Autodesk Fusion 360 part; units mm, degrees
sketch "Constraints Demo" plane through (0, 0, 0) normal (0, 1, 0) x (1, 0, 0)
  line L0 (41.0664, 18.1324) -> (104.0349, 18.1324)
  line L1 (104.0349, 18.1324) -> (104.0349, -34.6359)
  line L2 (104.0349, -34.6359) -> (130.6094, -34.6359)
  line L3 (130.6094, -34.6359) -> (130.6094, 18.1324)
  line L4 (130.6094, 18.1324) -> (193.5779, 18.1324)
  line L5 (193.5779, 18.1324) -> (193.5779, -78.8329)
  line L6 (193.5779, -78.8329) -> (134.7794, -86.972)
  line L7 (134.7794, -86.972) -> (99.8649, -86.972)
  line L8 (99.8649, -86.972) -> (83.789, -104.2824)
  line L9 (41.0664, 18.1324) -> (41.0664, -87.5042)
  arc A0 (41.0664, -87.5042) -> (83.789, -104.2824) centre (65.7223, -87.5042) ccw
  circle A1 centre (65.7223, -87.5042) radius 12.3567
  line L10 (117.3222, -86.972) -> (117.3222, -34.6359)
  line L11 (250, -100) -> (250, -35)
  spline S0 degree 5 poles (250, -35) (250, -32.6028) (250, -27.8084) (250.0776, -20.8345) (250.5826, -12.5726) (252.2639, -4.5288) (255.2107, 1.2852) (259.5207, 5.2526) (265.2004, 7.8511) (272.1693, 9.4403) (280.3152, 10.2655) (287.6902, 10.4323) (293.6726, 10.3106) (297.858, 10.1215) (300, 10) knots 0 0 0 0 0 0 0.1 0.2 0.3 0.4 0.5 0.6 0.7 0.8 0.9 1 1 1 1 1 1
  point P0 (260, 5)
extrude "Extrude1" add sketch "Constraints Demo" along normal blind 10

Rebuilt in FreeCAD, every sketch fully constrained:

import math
import FreeCAD as App
import Part
import Sketcher
Q = App.Units.Quantity

doc = App.newDocument("Part")
body = doc.addObject("PartDesign::Body", "Body")

# Sketch on XZ plane
sketch1 = body.newObject("Sketcher::SketchObject", "Sketch")
sketch1.AttachmentSupport = (doc.getObject("XZ_Plane"), [""])
sketch1.MapMode = "FlatFace"
sketch1.addGeometry([
    Part.LineSegment(App.Vector(104, -18, 0), App.Vector(41, -18, 0)),  # 0
    Part.LineSegment(App.Vector(41, -18, 0), App.Vector(41, 88, 0)),  # 1
    Part.ArcOfCircle(Part.Circle(App.Vector(66, 88, 0), App.Vector(0, 0, 1), 25), math.radians(43), math.radians(180)),  # 2
    Part.LineSegment(App.Vector(84, 104, 0), App.Vector(100, 87, 0)),  # 3
    Part.LineSegment(App.Vector(100, 87, 0), App.Vector(135, 87, 0)),  # 4
    Part.LineSegment(App.Vector(135, 87, 0), App.Vector(194, 79, 0)),  # 5
    Part.LineSegment(App.Vector(194, 79, 0), App.Vector(194, -18, 0)),  # 6
    Part.LineSegment(App.Vector(194, -18, 0), App.Vector(131, -18, 0)),  # 7
    Part.LineSegment(App.Vector(131, -18, 0), App.Vector(131, 35, 0)),  # 8
    Part.LineSegment(App.Vector(131, 35, 0), App.Vector(104, 35, 0)),  # 9
    Part.LineSegment(App.Vector(104, 35, 0), App.Vector(104, -18, 0)),  # 10
    Part.Circle(App.Vector(66, 88, 0), App.Vector(0, 0, 1), 12),  # 11
], False)
sketch1.addConstraint([
    Sketcher.Constraint("Coincident", 0, 2, 1, 1),
    Sketcher.Constraint("Tangent", 1, 2, 2, 2),
    Sketcher.Constraint("Tangent", 2, 1, 3, 1),
    Sketcher.Constraint("Coincident", 3, 2, 4, 1),
    Sketcher.Constraint("Coincident", 4, 2, 5, 1),
    Sketcher.Constraint("Coincident", 5, 2, 6, 1),
    Sketcher.Constraint("Coincident", 6, 2, 7, 1),
    Sketcher.Constraint("Coincident", 7, 2, 8, 1),
    Sketcher.Constraint("Coincident", 8, 2, 9, 1),
    Sketcher.Constraint("Coincident", 9, 2, 10, 1),
    Sketcher.Constraint("Coincident", 10, 2, 0, 1),
    Sketcher.Constraint("Horizontal", 0),
    Sketcher.Constraint("Vertical", 1),
    Sketcher.Constraint("Horizontal", 4),
    Sketcher.Constraint("Vertical", 6),
    Sketcher.Constraint("Horizontal", 7),
    Sketcher.Constraint("Vertical", 8),
    Sketcher.Constraint("Horizontal", 9),
    Sketcher.Constraint("Vertical", 10),
    Sketcher.Constraint("Coincident", 11, 3, 2, 3),
    Sketcher.Constraint("Horizontal", 0, 2, 6, 2),
    Sketcher.Constraint("Equal", 0, 7),
    Sketcher.Constraint("Radius", 2, 24.656),
    Sketcher.Constraint("Diameter", 11, 24.7134),
    Sketcher.Constraint("Angle", 5, Q("-7.881 deg")),
    Sketcher.Constraint("DistanceX", 7, 2, 4, 2, 4.17),
    Sketcher.Constraint("DistanceX", 3, 2, 9, 2, 4.17),
    Sketcher.Constraint("DistanceX", 0, 2, 0, 1, 62.9685),
    Sketcher.Constraint("DistanceX", 4, 1, 4, 2, 34.9145),
    Sketcher.Constraint("DistanceY", 1, 1, 1, 2, 105.6366),
    Sketcher.Constraint("DistanceY", 6, 2, 6, 1, 96.9653),
    Sketcher.Constraint("DistanceY", 8, 1, 8, 2, 52.7683),
    Sketcher.Constraint("DistanceX", -1, 1, 2, 1, 83.789),
    Sketcher.Constraint("DistanceY", -1, 1, 3, 2, 86.972),
])
pad1 = body.newObject("PartDesign::Pad", "Pad")
pad1.Profile = sketch1
pad1.Length = 10
pad1.Reversed = True

doc.recompute()
